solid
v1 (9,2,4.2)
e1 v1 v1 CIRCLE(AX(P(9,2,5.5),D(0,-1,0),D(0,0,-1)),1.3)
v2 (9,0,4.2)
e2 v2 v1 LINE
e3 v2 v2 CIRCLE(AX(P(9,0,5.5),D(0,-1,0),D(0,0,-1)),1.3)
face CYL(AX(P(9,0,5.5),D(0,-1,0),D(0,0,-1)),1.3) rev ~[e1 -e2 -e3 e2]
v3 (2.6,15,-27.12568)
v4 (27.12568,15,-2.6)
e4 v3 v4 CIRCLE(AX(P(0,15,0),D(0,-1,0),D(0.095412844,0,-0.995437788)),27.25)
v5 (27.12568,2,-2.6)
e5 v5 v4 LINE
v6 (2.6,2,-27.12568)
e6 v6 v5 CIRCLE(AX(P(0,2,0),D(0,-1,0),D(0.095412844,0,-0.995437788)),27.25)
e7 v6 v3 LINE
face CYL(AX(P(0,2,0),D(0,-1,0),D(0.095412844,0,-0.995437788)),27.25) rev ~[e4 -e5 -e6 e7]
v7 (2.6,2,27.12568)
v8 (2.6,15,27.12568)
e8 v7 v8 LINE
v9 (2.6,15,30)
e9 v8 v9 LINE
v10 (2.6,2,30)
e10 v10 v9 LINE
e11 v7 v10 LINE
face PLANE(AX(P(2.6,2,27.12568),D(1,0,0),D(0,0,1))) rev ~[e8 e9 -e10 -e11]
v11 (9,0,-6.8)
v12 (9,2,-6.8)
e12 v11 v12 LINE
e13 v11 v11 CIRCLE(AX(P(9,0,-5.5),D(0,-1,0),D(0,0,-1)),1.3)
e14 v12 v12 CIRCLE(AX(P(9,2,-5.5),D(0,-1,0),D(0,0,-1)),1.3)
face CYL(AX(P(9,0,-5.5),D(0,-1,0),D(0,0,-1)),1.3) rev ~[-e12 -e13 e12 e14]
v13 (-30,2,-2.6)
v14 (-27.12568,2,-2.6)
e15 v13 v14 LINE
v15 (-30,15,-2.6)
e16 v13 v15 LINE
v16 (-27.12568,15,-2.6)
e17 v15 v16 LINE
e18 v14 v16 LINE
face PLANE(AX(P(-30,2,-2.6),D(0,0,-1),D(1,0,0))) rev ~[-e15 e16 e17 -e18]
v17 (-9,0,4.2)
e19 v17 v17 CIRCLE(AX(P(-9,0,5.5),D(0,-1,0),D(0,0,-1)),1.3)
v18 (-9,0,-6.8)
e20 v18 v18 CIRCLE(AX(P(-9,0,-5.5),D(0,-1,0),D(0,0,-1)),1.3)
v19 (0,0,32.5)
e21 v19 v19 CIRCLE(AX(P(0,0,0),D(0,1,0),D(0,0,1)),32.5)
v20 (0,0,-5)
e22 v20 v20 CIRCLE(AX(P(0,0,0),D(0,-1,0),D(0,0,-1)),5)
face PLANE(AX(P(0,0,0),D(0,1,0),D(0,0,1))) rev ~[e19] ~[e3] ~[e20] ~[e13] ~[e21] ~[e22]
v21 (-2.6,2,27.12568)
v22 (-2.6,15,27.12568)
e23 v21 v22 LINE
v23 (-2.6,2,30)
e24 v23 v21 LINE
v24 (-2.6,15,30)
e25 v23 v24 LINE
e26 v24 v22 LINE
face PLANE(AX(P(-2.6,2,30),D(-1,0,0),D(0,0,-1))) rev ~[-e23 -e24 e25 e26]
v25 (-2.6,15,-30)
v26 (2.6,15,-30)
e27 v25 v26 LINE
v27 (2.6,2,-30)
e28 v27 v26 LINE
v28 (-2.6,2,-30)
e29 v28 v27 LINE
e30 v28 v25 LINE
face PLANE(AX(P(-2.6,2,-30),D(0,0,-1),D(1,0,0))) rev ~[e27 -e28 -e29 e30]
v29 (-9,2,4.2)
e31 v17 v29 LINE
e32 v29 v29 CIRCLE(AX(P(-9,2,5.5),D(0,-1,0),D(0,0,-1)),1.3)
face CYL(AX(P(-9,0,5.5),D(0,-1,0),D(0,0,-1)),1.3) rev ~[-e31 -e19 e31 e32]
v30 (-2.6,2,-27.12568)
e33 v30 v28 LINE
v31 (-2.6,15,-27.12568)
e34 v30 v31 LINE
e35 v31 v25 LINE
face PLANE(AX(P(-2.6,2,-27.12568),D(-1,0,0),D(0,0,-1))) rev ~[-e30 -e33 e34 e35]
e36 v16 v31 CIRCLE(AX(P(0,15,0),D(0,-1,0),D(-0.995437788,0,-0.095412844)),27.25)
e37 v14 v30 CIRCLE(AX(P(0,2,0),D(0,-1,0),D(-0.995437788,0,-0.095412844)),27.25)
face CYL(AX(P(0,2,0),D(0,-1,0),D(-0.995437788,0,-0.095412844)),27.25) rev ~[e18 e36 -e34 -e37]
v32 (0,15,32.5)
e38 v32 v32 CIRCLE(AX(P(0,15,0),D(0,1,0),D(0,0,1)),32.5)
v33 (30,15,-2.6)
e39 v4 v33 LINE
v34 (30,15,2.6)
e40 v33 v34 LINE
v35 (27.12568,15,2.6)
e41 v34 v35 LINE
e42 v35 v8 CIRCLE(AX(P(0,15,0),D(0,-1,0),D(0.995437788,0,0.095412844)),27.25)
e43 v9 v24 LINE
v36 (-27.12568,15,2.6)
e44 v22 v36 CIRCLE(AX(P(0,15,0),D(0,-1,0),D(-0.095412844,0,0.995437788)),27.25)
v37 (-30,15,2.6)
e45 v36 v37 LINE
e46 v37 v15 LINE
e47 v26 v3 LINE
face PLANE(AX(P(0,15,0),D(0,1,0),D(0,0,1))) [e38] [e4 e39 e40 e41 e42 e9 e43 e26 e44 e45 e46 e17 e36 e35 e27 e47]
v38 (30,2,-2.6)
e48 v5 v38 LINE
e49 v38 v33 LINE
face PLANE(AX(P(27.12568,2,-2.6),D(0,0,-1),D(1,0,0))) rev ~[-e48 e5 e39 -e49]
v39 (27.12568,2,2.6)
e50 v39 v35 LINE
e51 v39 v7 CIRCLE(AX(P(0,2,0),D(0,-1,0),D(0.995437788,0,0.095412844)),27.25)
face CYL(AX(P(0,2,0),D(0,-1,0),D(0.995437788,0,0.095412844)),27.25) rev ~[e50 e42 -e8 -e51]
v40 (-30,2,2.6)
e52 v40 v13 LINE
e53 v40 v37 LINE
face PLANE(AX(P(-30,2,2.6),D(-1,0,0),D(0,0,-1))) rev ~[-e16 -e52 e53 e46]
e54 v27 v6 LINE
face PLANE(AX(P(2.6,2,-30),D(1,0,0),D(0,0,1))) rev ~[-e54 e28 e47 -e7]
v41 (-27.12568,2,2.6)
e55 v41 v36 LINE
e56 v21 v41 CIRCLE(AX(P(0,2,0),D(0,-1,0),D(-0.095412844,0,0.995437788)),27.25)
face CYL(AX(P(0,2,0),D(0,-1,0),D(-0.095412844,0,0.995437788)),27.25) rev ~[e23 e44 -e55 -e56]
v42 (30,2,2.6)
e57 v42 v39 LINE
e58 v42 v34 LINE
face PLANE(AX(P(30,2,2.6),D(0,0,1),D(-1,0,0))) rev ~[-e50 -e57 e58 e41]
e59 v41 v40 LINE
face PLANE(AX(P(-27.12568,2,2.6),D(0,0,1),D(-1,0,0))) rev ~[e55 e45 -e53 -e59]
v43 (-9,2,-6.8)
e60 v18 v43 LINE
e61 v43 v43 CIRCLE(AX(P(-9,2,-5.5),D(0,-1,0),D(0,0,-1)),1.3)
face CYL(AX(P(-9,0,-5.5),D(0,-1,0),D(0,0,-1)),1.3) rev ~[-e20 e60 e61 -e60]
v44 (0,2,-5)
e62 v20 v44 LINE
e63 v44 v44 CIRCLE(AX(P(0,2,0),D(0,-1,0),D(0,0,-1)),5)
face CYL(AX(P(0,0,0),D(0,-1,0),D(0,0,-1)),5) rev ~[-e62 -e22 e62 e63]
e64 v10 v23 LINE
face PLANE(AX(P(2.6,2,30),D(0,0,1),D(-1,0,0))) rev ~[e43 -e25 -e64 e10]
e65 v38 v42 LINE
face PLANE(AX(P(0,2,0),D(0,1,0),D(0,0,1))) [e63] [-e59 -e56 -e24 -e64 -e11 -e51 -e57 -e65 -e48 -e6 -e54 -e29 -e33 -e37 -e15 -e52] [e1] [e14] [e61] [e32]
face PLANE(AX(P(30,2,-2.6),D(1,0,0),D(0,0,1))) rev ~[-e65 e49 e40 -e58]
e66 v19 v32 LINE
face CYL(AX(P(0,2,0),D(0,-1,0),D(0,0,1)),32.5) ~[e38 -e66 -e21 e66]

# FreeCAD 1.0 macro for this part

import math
import FreeCAD as App
import Part
import Sketcher

doc = App.newDocument("Part")
params = doc.addObject("Spreadsheet::Sheet", "Params")
for row, (alias, value) in enumerate([
    ("sketch1_diameter", "65 mm"),
    ("pad1_length", "2 mm"),
    ("sketch2_diameter", "65 mm"),
    ("sketch2_radius", "27.25 mm"),
    ("sketch2_width", "5.2 mm"),
    ("pad2_length", "13 mm"),
    ("sketch3_diameter", "10 mm"),
    ("sketch4_diameter", "2.6 mm"),
    ("sketch5_diameter", "2.6 mm"),
    ("sketch6_diameter", "2.6 mm"),
    ("sketch7_diameter", "2.6 mm"),
], start=1):
    params.set(f"A{row}", alias)
    params.set(f"B{row}", "=" + value)
    params.setAlias(f"B{row}", alias)

body = doc.addObject("PartDesign::Body", "Body")

sketch1 = body.newObject("Sketcher::SketchObject", "Sketch")
sketch1.AttachmentSupport = (doc.getObject("XZ_Plane"), [""])
sketch1.MapMode = "FlatFace"
sketch1.addGeometry(Part.Circle(App.Vector(0, 0, 0), App.Vector(0, 0, 1), 32.5), False)
sketch1.addConstraint(Sketcher.Constraint("Coincident", 0, 3, -1, 1))
sketch1.addConstraint(Sketcher.Constraint("Diameter", 0, 65.0))
sketch1.setExpression("Constraints[1]", "Params.sketch1_diameter")
pad1 = body.newObject("PartDesign::Pad", "Pad")
pad1.Profile = sketch1
pad1.setExpression("Length", "Params.pad1_length")
pad1.Reversed = True

sketch2 = body.newObject("Sketcher::SketchObject", "Sketch001")
sketch2.AttachmentSupport = (doc.getObject("XZ_Plane"), [""])
sketch2.MapMode = "FlatFace"
sketch2.AttachmentOffset = App.Placement(App.Vector(0, 0, -2), App.Rotation())
sketch2.addGeometry(Part.Circle(App.Vector(0, 0, 0), App.Vector(0, 0, 1), 32.5), False)
sketch2.addGeometry(Part.ArcOfCircle(Part.Circle(App.Vector(0, 0, 0), App.Vector(0, 0, 1), 27.25), math.radians(5.475082), math.radians(84.524918)), False)
sketch2.addGeometry(Part.LineSegment(App.Vector(2.6, 27.12568, 0), App.Vector(2.6, 30, 0)), False)
sketch2.addGeometry(Part.LineSegment(App.Vector(2.6, 30, 0), App.Vector(-2.6, 30, 0)), False)
sketch2.addGeometry(Part.LineSegment(App.Vector(-2.6, 30, 0), App.Vector(-2.6, 27.12568, 0)), False)
sketch2.addGeometry(Part.ArcOfCircle(Part.Circle(App.Vector(0, 0, 0), App.Vector(0, 0, 1), 27.25), math.radians(95.475082), math.radians(174.524918)), False)
sketch2.addGeometry(Part.LineSegment(App.Vector(-27.12568, 2.6, 0), App.Vector(-30, 2.6, 0)), False)
sketch2.addGeometry(Part.LineSegment(App.Vector(-30, 2.6, 0), App.Vector(-30, -2.6, 0)), False)
sketch2.addGeometry(Part.LineSegment(App.Vector(-30, -2.6, 0), App.Vector(-27.12568, -2.6, 0)), False)
sketch2.addGeometry(Part.ArcOfCircle(Part.Circle(App.Vector(0, 0, 0), App.Vector(0, 0, 1), 27.25), math.radians(-174.524918), math.radians(-95.475082)), False)
sketch2.addGeometry(Part.LineSegment(App.Vector(-2.6, -27.12568, 0), App.Vector(-2.6, -30, 0)), False)
sketch2.addGeometry(Part.LineSegment(App.Vector(-2.6, -30, 0), App.Vector(2.6, -30, 0)), False)
sketch2.addGeometry(Part.LineSegment(App.Vector(2.6, -30, 0), App.Vector(2.6, -27.12568, 0)), False)
sketch2.addGeometry(Part.ArcOfCircle(Part.Circle(App.Vector(0, 0, 0), App.Vector(0, 0, 1), 27.25), math.radians(-84.524918), math.radians(-5.475082)), False)
sketch2.addGeometry(Part.LineSegment(App.Vector(27.12568, -2.6, 0), App.Vector(30, -2.6, 0)), False)
sketch2.addGeometry(Part.LineSegment(App.Vector(30, -2.6, 0), App.Vector(30, 2.6, 0)), False)
sketch2.addGeometry(Part.LineSegment(App.Vector(30, 2.6, 0), App.Vector(27.12568, 2.6, 0)), False)
sketch2.addConstraint(Sketcher.Constraint("Coincident", 1, 2, 2, 1))
sketch2.addConstraint(Sketcher.Constraint("Coincident", 2, 2, 3, 1))
sketch2.addConstraint(Sketcher.Constraint("Coincident", 3, 2, 4, 1))
sketch2.addConstraint(Sketcher.Constraint("Coincident", 4, 2, 5, 1))
sketch2.addConstraint(Sketcher.Constraint("Coincident", 5, 2, 6, 1))
sketch2.addConstraint(Sketcher.Constraint("Coincident", 6, 2, 7, 1))
sketch2.addConstraint(Sketcher.Constraint("Coincident", 7, 2, 8, 1))
sketch2.addConstraint(Sketcher.Constraint("Coincident", 8, 2, 9, 1))
sketch2.addConstraint(Sketcher.Constraint("Coincident", 9, 2, 10, 1))
sketch2.addConstraint(Sketcher.Constraint("Coincident", 10, 2, 11, 1))
sketch2.addConstraint(Sketcher.Constraint("Coincident", 11, 2, 12, 1))
sketch2.addConstraint(Sketcher.Constraint("Coincident", 12, 2, 13, 1))
sketch2.addConstraint(Sketcher.Constraint("Coincident", 13, 2, 14, 1))
sketch2.addConstraint(Sketcher.Constraint("Coincident", 14, 2, 15, 1))
sketch2.addConstraint(Sketcher.Constraint("Coincident", 15, 2, 16, 1))
sketch2.addConstraint(Sketcher.Constraint("Coincident", 16, 2, 1, 1))
sketch2.addConstraint(Sketcher.Constraint("Vertical", 2))
sketch2.addConstraint(Sketcher.Constraint("Horizontal", 3))
sketch2.addConstraint(Sketcher.Constraint("Vertical", 4))
sketch2.addConstraint(Sketcher.Constraint("Horizontal", 6))
sketch2.addConstraint(Sketcher.Constraint("Vertical", 7))
sketch2.addConstraint(Sketcher.Constraint("Horizontal", 8))
sketch2.addConstraint(Sketcher.Constraint("Vertical", 10))
sketch2.addConstraint(Sketcher.Constraint("Horizontal", 11))
sketch2.addConstraint(Sketcher.Constraint("Vertical", 12))
sketch2.addConstraint(Sketcher.Constraint("Horizontal", 14))
sketch2.addConstraint(Sketcher.Constraint("Vertical", 15))
sketch2.addConstraint(Sketcher.Constraint("Horizontal", 16))
sketch2.addConstraint(Sketcher.Constraint("Coincident", 0, 3, -1, 1))
sketch2.addConstraint(Sketcher.Constraint("Coincident", 1, 3, -1, 1))
sketch2.addConstraint(Sketcher.Constraint("Coincident", 5, 3, -1, 1))
sketch2.addConstraint(Sketcher.Constraint("Coincident", 9, 3, -1, 1))
sketch2.addConstraint(Sketcher.Constraint("Coincident", 13, 3, -1, 1))
sketch2.addConstraint(Sketcher.Constraint("Equal", 1, 5))
sketch2.addConstraint(Sketcher.Constraint("Equal", 5, 9))
sketch2.addConstraint(Sketcher.Constraint("Equal", 9, 13))
sketch2.addConstraint(Sketcher.Constraint("Symmetric", 2, 2, 10, 2, -1, 1))
sketch2.addConstraint(Sketcher.Constraint("Symmetric", 6, 2, 14, 2, -1, 1))
sketch2.addConstraint(Sketcher.Constraint("Horizontal", 1, 2, 4, 2))
sketch2.addConstraint(Sketcher.Constraint("Horizontal", 9, 2, 12, 2))
sketch2.addConstraint(Sketcher.Constraint("Horizontal", 8, 2, 13, 2))
sketch2.addConstraint(Sketcher.Constraint("Horizontal", 6, 2, 15, 2))
sketch2.addConstraint(Sketcher.Constraint("Equal", 16, 2))
sketch2.addConstraint(Sketcher.Constraint("Equal", 11, 7))
sketch2.addConstraint(Sketcher.Constraint("Diameter", 0, 65.0))
sketch2.addConstraint(Sketcher.Constraint("Radius", 1, 27.25))
sketch2.addConstraint(Sketcher.Constraint("DistanceX", 3, 2, 3, 1, 5.2))
sketch2.addConstraint(Sketcher.Constraint("DistanceY", -1, 1, 2, 2, 30.0))
sketch2.setExpression("Constraints[44]", "Params.sketch2_diameter")
sketch2.setExpression("Constraints[45]", "Params.sketch2_radius")
sketch2.setExpression("Constraints[46]", "Params.sketch2_width")
pad2 = body.newObject("PartDesign::Pad", "Pad001")
pad2.Profile = sketch2
pad2.setExpression("Length", "Params.pad2_length")
pad2.Reversed = True

sketch3 = body.newObject("Sketcher::SketchObject", "Sketch002")
sketch3.AttachmentSupport = (doc.getObject("XZ_Plane"), [""])
sketch3.MapMode = "FlatFace"
sketch3.addGeometry(Part.Circle(App.Vector(0, 0, 0), App.Vector(0, 0, 1), 5), False)
sketch3.addConstraint(Sketcher.Constraint("Coincident", 0, 3, -1, 1))
sketch3.addConstraint(Sketcher.Constraint("Diameter", 0, 10.0))
sketch3.setExpression("Constraints[1]", "Params.sketch3_diameter")
pocket1 = body.newObject("PartDesign::Pocket", "Pocket")
pocket1.Profile = sketch3
pocket1.Type = "UpToFirst"

sketch4 = body.newObject("Sketcher::SketchObject", "Sketch003")
sketch4.AttachmentSupport = (doc.getObject("XZ_Plane"), [""])
sketch4.MapMode = "FlatFace"
sketch4.addGeometry(Part.Circle(App.Vector(9, 5.5, 0), App.Vector(0, 0, 1), 1.3), False)
sketch4.addConstraint(Sketcher.Constraint("Diameter", 0, 2.6))
sketch4.addConstraint(Sketcher.Constraint("DistanceX", -1, 1, 0, 3, 9.0))
sketch4.addConstraint(Sketcher.Constraint("DistanceY", -1, 1, 0, 3, 5.5))
sketch4.setExpression("Constraints[0]", "Params.sketch4_diameter")
pocket2 = body.newObject("PartDesign::Pocket", "Pocket001")
pocket2.Profile = sketch4
pocket2.Type = "UpToFirst"

sketch5 = body.newObject("Sketcher::SketchObject", "Sketch004")
sketch5.AttachmentSupport = (doc.getObject("XZ_Plane"), [""])
sketch5.MapMode = "FlatFace"
sketch5.addGeometry(Part.Circle(App.Vector(9, -5.5, 0), App.Vector(0, 0, 1), 1.3), False)
sketch5.addConstraint(Sketcher.Constraint("Diameter", 0, 2.6))
sketch5.addConstraint(Sketcher.Constraint("DistanceX", -1, 1, 0, 3, 9.0))
sketch5.addConstraint(Sketcher.Constraint("DistanceY", 0, 3, -1, 1, 5.5))
sketch5.setExpression("Constraints[0]", "Params.sketch5_diameter")
pocket3 = body.newObject("PartDesign::Pocket", "Pocket002")
pocket3.Profile = sketch5
pocket3.Type = "UpToFirst"

sketch6 = body.newObject("Sketcher::SketchObject", "Sketch005")
sketch6.AttachmentSupport = (doc.getObject("XZ_Plane"), [""])
sketch6.MapMode = "FlatFace"
sketch6.addGeometry(Part.Circle(App.Vector(-9, -5.5, 0), App.Vector(0, 0, 1), 1.3), False)
sketch6.addConstraint(Sketcher.Constraint("Diameter", 0, 2.6))
sketch6.addConstraint(Sketcher.Constraint("DistanceX", 0, 3, -1, 1, 9.0))
sketch6.addConstraint(Sketcher.Constraint("DistanceY", 0, 3, -1, 1, 5.5))
sketch6.setExpression("Constraints[0]", "Params.sketch6_diameter")
pocket4 = body.newObject("PartDesign::Pocket", "Pocket003")
pocket4.Profile = sketch6
pocket4.Type = "UpToFirst"

sketch7 = body.newObject("Sketcher::SketchObject", "Sketch006")
sketch7.AttachmentSupport = (doc.getObject("XZ_Plane"), [""])
sketch7.MapMode = "FlatFace"
sketch7.addGeometry(Part.Circle(App.Vector(-9, 5.5, 0), App.Vector(0, 0, 1), 1.3), False)
sketch7.addConstraint(Sketcher.Constraint("Diameter", 0, 2.6))
sketch7.addConstraint(Sketcher.Constraint("DistanceX", 0, 3, -1, 1, 9.0))
sketch7.addConstraint(Sketcher.Constraint("DistanceY", -1, 1, 0, 3, 5.5))
sketch7.setExpression("Constraints[0]", "Params.sketch7_diameter")
pocket5 = body.newObject("PartDesign::Pocket", "Pocket004")
pocket5.Profile = sketch7
pocket5.Type = "UpToFirst"

doc.recompute()
